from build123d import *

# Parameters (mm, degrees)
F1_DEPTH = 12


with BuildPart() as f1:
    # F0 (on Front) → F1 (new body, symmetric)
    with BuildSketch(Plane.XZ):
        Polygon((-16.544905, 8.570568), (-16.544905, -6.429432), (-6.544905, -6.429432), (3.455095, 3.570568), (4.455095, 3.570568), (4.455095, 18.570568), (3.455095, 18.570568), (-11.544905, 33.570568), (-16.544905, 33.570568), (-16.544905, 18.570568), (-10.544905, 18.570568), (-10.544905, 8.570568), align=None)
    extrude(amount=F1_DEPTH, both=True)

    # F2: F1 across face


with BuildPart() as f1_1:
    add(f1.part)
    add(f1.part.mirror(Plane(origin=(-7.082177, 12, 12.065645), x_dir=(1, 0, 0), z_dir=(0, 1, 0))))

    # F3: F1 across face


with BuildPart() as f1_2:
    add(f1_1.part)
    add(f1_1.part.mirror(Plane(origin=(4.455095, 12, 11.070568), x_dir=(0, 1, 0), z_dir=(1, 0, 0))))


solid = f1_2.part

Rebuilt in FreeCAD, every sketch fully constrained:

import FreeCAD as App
import Part
import Sketcher

V = App.Vector


def add_polygon(sketch, points):
    """Adds a closed chain of lines whose ends are joined by coincident constraints."""
    first, n = sketch.GeometryCount, len(points)
    for a, b in zip(points, points[1:] + points[:1]):
        sketch.addGeometry(Part.LineSegment(App.Vector(*a, 0), App.Vector(*b, 0)), False)
    for i in range(n):
        sketch.addConstraint(Sketcher.Constraint("Coincident", first + i, 2, first + (i + 1) % n, 1))

doc = App.newDocument("Part")
body = doc.addObject("PartDesign::Body", "Body")

# Sketch on XZ plane
sketch1 = body.newObject("Sketcher::SketchObject", "Sketch")
sketch1.AttachmentSupport = (doc.getObject("XZ_Plane"), [""])
sketch1.MapMode = "FlatFace"
add_polygon(sketch1, [(-16.5, 8.6), (-16.5, -6.4), (-6.5, -6.4), (3.5, 3.6), (4.5, 3.6), (4.5, 18.6), (3.5, 18.6), (-11.5, 33.6), (-16.5, 33.6), (-16.5, 18.6), (-10.5, 18.6), (-10.5, 8.6)])  # lines 0-11
sketch1.addConstraint([
    Sketcher.Constraint("Vertical", 0),
    Sketcher.Constraint("Horizontal", 1),
    Sketcher.Constraint("Horizontal", 3),
    Sketcher.Constraint("Vertical", 4),
    Sketcher.Constraint("Horizontal", 5),
    Sketcher.Constraint("Horizontal", 7),
    Sketcher.Constraint("Vertical", 8),
    Sketcher.Constraint("Horizontal", 9),
    Sketcher.Constraint("Vertical", 10),
    Sketcher.Constraint("Horizontal", 11),
    Sketcher.Constraint("Perpendicular", 2, 6),
    Sketcher.Constraint("Horizontal", 5, 2, 8, 2),
    Sketcher.Constraint("Vertical", 2, 2, 5, 2),
    Sketcher.Constraint("Vertical", 0, 2, 7, 2),
    Sketcher.Constraint("Equal", 0, 4),
    Sketcher.Constraint("Equal", 4, 8),
    Sketcher.Constraint("Equal", 1, 10),
    Sketcher.Constraint("DistanceX", 1, 1, 1, 2, 10.0),
    Sketcher.Constraint("DistanceX", 3, 1, 3, 2, 1.0),
    Sketcher.Constraint("DistanceX", 7, 2, 7, 1, 5.0),
    Sketcher.Constraint("DistanceX", 9, 1, 9, 2, 6.0),
    Sketcher.Constraint("DistanceY", 0, 2, 0, 1, 15.0),
    Sketcher.Constraint("DistanceY", -1, 1, 2, 2, 3.570568),
    Sketcher.Constraint("DistanceX", 0, 2, -1, 1, 16.544905),
])
pad1 = body.newObject("PartDesign::Pad", "Pad")
pad1.Profile = sketch1
pad1.Length = 24
pad1.Midplane = True
body2 = doc.addObject("PartDesign::Body", "Body001")
doc.recompute()

body2.BaseFeature = body
doc.recompute()

mirroring = doc.addObject("Part::Mirroring", "Mirroring")
mirroring.Source = body
mirroring.Base = V(-7.082177, 12, 12.065645)
mirroring.Normal = V(0, 1, 0)
body3 = doc.addObject("PartDesign::Body", "Body002")
body3.BaseFeature = mirroring
boolean = body2.newObject("PartDesign::Boolean", "Boolean")
boolean.Type = "Fuse"
boolean.addObjects([body3])
doc.recompute()
body4 = doc.addObject("PartDesign::Body", "Body003")
doc.recompute()

body4.BaseFeature = body2
doc.recompute()

mirroring2 = doc.addObject("Part::Mirroring", "Mirroring001")
mirroring2.Source = body2
mirroring2.Base = V(4.455095, 12, 11.070568)
mirroring2.Normal = V(1, 0, 0)
body5 = doc.addObject("PartDesign::Body", "Body004")
body5.BaseFeature = mirroring2
boolean2 = body4.newObject("PartDesign::Boolean", "Boolean001")
boolean2.Type = "Fuse"
boolean2.addObjects([body5])
doc.recompute()
mirroring.Visibility = False
mirroring2.Visibility = False

doc.recompute()
